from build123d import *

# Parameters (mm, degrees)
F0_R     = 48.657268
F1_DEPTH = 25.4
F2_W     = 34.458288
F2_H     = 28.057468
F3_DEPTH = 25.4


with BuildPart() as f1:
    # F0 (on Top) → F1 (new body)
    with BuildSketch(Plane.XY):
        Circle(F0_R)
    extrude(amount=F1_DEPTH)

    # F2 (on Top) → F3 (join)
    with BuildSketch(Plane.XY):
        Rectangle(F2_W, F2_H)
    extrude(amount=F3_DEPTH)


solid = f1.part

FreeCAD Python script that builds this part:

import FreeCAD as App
import Part
import Sketcher
Q = App.Units.Quantity

doc = App.newDocument("Part")
body = doc.addObject("PartDesign::Body", "Body")

sketch1 = doc.addObject("Sketcher::SketchObject", "Sketch")
body.addObject(sketch1)
sketch1.AttachmentSupport = (doc.XY_Plane, [""])
sketch1.MapMode = "FlatFace"
sketch1.addGeometry(Part.Circle(App.Vector(0, 0, 0), App.Vector(0, 0, 1), 49), False)
sketch1.addConstraint(Sketcher.Constraint("Coincident", 0, 3, -1, 1))
sketch1.addConstraint(Sketcher.Constraint("Diameter", 0, Q("97.314536 mm")))
pad1 = doc.addObject("PartDesign::Pad", "Pad")
body.addObject(pad1)
pad1.Profile = sketch1
pad1.Length = Q("1 in")

sketch2 = doc.addObject("Sketcher::SketchObject", "Sketch001")
body.addObject(sketch2)
sketch2.AttachmentSupport = (doc.XY_Plane, [""])
sketch2.MapMode = "FlatFace"
sketch2.addGeometry(Part.LineSegment(App.Vector(-17, 14, 0), App.Vector(-17, -14, 0)), False)
sketch2.addGeometry(Part.LineSegment(App.Vector(-17, -14, 0), App.Vector(17, -14, 0)), False)
sketch2.addGeometry(Part.LineSegment(App.Vector(17, -14, 0), App.Vector(17, 14, 0)), False)
sketch2.addGeometry(Part.LineSegment(App.Vector(17, 14, 0), App.Vector(-17, 14, 0)), False)
sketch2.addConstraint(Sketcher.Constraint("Coincident", 0, 2, 1, 1))
sketch2.addConstraint(Sketcher.Constraint("Coincident", 1, 2, 2, 1))
sketch2.addConstraint(Sketcher.Constraint("Coincident", 2, 2, 3, 1))
sketch2.addConstraint(Sketcher.Constraint("Coincident", 3, 2, 0, 1))
sketch2.addConstraint(Sketcher.Constraint("Vertical", 0))
sketch2.addConstraint(Sketcher.Constraint("Horizontal", 1))
sketch2.addConstraint(Sketcher.Constraint("Vertical", 2))
sketch2.addConstraint(Sketcher.Constraint("Horizontal", 3))
sketch2.addConstraint(Sketcher.Constraint("Symmetric", 0, 2, 2, 2, -1, 1))
sketch2.addConstraint(Sketcher.Constraint("DistanceX", 1, 1, 1, 2, Q("34.458288 mm")))
sketch2.addConstraint(Sketcher.Constraint("DistanceY", 0, 2, 0, 1, Q("28.057468 mm")))
pad2 = doc.addObject("PartDesign::Pad", "Pad001")
body.addObject(pad2)
pad2.Profile = sketch2
pad2.Length = Q("1 in")

doc.recompute()
